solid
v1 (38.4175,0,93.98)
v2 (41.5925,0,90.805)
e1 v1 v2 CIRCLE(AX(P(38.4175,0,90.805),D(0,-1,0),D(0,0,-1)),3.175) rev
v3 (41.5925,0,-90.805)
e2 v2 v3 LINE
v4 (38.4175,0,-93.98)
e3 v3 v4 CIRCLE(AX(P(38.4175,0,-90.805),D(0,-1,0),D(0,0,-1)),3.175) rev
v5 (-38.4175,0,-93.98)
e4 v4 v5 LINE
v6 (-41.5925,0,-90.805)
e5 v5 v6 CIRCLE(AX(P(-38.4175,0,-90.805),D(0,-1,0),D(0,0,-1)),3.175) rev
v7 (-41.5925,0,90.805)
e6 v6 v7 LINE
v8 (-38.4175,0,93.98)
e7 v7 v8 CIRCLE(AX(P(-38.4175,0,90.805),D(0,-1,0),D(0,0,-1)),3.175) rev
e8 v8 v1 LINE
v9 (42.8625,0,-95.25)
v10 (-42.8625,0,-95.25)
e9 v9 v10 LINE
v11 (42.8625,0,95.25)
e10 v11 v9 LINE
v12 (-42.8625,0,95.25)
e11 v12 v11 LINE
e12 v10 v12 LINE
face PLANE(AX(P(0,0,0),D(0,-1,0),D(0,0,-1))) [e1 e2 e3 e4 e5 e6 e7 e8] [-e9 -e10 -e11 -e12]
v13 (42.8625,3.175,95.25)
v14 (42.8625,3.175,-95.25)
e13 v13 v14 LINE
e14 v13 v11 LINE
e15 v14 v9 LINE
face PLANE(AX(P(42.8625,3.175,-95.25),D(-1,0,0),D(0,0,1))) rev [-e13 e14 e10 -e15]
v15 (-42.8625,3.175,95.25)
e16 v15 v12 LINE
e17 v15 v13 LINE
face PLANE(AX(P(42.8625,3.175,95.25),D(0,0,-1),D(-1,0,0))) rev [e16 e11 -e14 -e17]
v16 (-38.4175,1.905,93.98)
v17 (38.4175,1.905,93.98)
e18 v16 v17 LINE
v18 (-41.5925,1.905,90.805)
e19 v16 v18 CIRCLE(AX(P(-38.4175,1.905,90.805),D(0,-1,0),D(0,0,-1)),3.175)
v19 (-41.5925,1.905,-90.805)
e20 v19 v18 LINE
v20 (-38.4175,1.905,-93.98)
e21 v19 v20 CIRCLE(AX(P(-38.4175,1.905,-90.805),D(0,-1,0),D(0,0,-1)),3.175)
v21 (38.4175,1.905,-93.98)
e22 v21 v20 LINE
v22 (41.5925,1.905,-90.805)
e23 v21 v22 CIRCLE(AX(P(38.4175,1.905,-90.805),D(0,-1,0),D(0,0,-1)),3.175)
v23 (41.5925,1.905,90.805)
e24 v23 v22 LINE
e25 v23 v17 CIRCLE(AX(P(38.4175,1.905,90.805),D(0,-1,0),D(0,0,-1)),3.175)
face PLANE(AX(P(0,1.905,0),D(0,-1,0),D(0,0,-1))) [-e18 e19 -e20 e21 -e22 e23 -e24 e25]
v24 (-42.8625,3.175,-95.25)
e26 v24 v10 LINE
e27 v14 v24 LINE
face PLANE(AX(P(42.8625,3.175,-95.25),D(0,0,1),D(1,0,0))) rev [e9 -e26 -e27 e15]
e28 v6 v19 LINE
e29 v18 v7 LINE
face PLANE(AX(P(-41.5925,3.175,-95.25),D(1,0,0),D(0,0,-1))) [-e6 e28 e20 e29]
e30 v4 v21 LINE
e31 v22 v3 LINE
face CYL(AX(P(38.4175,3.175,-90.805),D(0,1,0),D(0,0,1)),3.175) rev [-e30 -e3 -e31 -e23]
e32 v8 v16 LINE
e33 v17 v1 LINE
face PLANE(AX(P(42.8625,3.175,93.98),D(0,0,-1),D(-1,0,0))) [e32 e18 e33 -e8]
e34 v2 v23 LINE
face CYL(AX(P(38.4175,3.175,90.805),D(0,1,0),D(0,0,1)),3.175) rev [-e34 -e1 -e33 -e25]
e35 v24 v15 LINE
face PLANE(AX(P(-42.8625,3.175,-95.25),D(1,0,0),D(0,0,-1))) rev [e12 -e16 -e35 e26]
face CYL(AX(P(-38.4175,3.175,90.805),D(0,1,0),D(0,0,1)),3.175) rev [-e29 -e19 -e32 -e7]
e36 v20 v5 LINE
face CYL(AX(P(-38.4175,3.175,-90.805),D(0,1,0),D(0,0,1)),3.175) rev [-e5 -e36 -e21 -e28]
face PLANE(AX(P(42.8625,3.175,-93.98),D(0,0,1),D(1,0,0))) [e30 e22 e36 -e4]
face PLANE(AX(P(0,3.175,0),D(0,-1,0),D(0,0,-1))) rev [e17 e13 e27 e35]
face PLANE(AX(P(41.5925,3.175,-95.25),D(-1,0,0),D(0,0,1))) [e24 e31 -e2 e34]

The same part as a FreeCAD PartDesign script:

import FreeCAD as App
import Part
import Sketcher

V = App.Vector
Q = App.Units.Quantity


def edges_at(feature, points):
    """Names of the edges that pass closest to the given points."""
    edges = feature.Shape.Edges
    near = lambda p: min(range(len(edges)), key=lambda i: edges[i].distToShape(Part.Vertex(*p))[0])
    return sorted({f"Edge{near(p) + 1}" for p in points})


def faces_at(feature, points):
    """Names of the faces that lie closest to the given points."""
    faces = feature.Shape.Faces
    near = lambda p: min(range(len(faces)), key=lambda i: faces[i].distToShape(Part.Vertex(*p))[0])
    return sorted({f"Face{near(p) + 1}" for p in points})

doc = App.newDocument("Part")
body = doc.addObject("PartDesign::Body", "Body")

sketch1 = body.newObject("Sketcher::SketchObject", "Sketch")
sketch1.AttachmentSupport = (doc.getObject("XZ_Plane"), [""])
sketch1.MapMode = "FlatFace"
sketch1.addGeometry(Part.LineSegment(V(-43, -95, 0), V(-43, 95, 0)), False)
sketch1.addGeometry(Part.LineSegment(V(-43, 95, 0), V(43, 95, 0)), False)
sketch1.addGeometry(Part.LineSegment(V(43, 95, 0), V(43, -95, 0)), False)
sketch1.addGeometry(Part.LineSegment(V(43, -95, 0), V(-43, -95, 0)), False)
sketch1.addConstraint(Sketcher.Constraint("Coincident", 0, 2, 1, 1))
sketch1.addConstraint(Sketcher.Constraint("Coincident", 1, 2, 2, 1))
sketch1.addConstraint(Sketcher.Constraint("Coincident", 2, 2, 3, 1))
sketch1.addConstraint(Sketcher.Constraint("Coincident", 3, 2, 0, 1))
sketch1.addConstraint(Sketcher.Constraint("Vertical", 0))
sketch1.addConstraint(Sketcher.Constraint("Horizontal", 1))
sketch1.addConstraint(Sketcher.Constraint("Vertical", 2))
sketch1.addConstraint(Sketcher.Constraint("Horizontal", 3))
sketch1.addConstraint(Sketcher.Constraint("Symmetric", 0, 2, 2, 2, -1, 1))
sketch1.addConstraint(Sketcher.Constraint("DistanceY", 0, 1, 0, 2, Q("7.5 in")))
sketch1.addConstraint(Sketcher.Constraint("DistanceX", 1, 1, 1, 2, Q("3.375 in")))
pad1 = body.newObject("PartDesign::Pad", "Pad")
pad1.Profile = sketch1
pad1.Length = Q("0.125 in")
pad1.Reversed = True
doc.recompute()

thickness = body.newObject("PartDesign::Thickness", "Thickness")
thickness.Base = (pad1, faces_at(pad1, [(0, 0, 0)]))
thickness.Value = Q("0.05 in")
thickness.Reversed = True
thickness.Join = "Intersection"
doc.recompute()

fillet = body.newObject("PartDesign::Fillet", "Fillet")
fillet.Base = (thickness, edges_at(thickness, [
    (-41.593, 0.953, -93.98),
    (-41.593, 0.953, 93.98),
    (41.593, 0.953, 93.98),
    (41.593, 0.953, -93.98),
]))
fillet.Radius = Q("0.125 in")

doc.recompute()
